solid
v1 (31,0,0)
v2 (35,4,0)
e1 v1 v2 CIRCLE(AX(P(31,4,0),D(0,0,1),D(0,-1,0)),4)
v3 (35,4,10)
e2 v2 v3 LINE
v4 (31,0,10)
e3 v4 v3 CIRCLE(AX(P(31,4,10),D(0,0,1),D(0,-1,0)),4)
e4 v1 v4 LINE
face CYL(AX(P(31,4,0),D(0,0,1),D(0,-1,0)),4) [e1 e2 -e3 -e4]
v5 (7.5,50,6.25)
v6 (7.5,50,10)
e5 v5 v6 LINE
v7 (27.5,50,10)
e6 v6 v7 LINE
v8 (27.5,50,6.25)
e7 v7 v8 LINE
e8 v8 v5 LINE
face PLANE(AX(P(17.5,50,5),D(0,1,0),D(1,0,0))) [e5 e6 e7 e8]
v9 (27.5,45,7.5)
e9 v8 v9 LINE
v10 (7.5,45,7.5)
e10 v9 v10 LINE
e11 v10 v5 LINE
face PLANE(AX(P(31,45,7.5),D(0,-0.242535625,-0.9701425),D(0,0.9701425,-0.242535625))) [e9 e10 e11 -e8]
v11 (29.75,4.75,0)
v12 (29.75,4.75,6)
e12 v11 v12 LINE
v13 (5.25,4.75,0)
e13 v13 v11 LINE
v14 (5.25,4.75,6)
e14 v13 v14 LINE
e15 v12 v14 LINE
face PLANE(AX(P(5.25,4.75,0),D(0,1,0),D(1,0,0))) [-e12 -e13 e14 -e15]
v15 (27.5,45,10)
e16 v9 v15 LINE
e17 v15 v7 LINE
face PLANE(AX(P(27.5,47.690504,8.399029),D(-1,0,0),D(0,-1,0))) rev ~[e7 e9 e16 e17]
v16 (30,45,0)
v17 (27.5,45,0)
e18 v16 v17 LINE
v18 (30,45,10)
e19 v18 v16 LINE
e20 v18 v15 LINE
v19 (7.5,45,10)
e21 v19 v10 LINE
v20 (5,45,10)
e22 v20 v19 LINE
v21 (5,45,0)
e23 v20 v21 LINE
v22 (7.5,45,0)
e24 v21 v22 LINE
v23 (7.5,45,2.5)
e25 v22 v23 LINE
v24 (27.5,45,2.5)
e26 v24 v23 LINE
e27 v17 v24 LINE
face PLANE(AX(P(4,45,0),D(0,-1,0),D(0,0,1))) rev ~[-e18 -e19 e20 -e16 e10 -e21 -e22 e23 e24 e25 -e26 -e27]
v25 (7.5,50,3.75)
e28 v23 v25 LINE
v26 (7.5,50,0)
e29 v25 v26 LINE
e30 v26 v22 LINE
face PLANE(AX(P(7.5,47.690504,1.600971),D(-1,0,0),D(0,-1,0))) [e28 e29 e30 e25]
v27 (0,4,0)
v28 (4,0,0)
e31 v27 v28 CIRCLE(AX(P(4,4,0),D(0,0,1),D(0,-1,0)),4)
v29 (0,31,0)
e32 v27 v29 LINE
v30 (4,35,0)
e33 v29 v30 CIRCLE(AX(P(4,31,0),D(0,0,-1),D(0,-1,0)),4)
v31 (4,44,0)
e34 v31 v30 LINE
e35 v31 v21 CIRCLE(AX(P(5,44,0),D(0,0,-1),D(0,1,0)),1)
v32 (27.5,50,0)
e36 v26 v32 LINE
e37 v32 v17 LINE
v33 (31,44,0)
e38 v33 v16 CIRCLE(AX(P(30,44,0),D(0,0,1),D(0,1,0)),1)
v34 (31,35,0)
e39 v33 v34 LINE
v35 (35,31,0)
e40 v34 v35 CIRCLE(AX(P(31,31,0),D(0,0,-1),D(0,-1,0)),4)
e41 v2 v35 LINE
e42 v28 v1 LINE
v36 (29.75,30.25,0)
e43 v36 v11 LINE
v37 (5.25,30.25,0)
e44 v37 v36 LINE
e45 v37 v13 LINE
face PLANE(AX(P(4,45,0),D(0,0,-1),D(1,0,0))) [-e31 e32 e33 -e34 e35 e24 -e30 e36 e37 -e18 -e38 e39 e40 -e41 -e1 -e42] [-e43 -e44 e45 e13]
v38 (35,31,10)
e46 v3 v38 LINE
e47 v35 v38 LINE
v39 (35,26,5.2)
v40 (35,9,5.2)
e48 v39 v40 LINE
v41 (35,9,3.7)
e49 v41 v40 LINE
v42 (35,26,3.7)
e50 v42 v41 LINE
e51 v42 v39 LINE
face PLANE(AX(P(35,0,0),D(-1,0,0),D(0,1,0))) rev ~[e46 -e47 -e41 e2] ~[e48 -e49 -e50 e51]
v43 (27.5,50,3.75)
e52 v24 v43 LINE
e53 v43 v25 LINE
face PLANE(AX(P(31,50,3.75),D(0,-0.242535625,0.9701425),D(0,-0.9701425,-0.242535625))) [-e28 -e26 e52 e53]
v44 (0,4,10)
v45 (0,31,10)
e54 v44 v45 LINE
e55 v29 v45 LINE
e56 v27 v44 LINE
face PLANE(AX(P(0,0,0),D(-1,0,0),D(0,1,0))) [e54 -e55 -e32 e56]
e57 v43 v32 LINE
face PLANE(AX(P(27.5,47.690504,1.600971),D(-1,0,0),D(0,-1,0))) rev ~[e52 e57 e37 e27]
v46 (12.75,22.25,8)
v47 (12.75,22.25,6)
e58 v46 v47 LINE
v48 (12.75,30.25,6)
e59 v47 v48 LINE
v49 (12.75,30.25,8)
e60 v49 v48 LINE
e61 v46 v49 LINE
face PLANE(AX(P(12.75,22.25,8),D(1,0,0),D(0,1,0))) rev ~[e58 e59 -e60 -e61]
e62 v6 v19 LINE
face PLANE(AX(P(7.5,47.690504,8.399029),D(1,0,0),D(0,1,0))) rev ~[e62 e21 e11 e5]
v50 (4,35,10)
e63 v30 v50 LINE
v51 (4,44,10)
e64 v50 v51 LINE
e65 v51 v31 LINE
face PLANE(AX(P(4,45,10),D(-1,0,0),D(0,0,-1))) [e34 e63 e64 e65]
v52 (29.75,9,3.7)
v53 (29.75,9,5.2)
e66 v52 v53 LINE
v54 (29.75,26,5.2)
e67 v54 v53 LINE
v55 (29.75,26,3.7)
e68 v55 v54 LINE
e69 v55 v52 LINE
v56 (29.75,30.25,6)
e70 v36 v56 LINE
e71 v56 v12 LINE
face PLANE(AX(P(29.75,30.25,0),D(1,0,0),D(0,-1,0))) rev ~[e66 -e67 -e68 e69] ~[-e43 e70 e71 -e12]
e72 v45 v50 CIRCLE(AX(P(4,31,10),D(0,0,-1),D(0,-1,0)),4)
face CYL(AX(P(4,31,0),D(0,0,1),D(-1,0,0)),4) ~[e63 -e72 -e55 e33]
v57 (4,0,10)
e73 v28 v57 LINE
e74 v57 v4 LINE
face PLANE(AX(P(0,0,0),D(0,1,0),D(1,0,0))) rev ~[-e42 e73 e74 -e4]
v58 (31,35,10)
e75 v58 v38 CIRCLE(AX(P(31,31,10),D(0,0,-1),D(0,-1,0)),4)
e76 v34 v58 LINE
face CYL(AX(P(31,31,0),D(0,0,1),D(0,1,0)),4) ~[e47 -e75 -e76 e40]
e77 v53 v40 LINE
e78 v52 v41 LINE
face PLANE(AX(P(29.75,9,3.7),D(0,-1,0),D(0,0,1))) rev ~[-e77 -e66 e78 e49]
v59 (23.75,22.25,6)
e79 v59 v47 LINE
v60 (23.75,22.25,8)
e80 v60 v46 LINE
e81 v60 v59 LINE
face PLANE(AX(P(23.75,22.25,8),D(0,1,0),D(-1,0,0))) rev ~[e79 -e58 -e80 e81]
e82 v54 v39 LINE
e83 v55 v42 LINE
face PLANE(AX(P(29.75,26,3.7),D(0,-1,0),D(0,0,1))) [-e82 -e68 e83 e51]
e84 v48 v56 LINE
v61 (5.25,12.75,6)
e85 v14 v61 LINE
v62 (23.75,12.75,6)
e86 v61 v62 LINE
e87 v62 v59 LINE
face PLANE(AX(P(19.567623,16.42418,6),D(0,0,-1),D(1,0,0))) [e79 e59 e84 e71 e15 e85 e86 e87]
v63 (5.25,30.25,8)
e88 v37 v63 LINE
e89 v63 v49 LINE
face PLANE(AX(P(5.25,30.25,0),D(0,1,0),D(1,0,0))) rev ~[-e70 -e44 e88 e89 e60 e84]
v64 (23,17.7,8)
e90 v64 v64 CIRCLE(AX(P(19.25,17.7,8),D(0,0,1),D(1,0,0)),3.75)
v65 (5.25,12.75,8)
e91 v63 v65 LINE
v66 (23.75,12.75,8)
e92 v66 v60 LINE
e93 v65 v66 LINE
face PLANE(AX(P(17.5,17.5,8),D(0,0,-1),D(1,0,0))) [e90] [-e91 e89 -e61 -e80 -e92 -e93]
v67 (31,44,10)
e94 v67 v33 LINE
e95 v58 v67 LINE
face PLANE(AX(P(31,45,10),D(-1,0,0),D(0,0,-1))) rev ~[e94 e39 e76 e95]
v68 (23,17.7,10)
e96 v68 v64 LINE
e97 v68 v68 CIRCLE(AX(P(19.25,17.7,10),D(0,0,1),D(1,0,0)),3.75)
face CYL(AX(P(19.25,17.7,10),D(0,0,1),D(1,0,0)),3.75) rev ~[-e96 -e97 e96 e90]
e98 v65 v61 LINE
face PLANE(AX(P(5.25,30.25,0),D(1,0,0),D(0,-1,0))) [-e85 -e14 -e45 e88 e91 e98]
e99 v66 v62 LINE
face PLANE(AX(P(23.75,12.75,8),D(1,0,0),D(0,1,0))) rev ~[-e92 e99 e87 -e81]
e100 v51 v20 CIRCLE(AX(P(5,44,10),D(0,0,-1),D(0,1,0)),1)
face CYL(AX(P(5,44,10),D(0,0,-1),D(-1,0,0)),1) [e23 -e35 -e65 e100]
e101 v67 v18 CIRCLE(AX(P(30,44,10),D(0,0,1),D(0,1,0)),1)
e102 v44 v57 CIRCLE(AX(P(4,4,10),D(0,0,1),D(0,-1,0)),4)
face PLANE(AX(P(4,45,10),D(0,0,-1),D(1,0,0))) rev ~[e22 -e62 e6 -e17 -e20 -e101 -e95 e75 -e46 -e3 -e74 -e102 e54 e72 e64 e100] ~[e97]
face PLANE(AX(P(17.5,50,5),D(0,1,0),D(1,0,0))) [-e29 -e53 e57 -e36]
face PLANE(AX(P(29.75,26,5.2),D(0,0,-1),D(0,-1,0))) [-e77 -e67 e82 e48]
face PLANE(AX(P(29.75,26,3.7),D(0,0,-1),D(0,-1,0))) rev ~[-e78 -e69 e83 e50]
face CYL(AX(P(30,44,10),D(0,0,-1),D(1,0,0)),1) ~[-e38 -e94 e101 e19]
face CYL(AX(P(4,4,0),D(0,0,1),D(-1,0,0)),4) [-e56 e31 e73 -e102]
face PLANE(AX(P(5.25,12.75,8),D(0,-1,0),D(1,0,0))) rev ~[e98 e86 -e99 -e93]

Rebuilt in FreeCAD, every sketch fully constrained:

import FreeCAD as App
import Part
import Sketcher
Q = App.Units.Quantity


def edges_at(feature, points):
    """Names of the edges that pass closest to the given points."""
    edges = feature.Shape.Edges
    near = lambda p: min(range(len(edges)), key=lambda i: edges[i].distToShape(Part.Vertex(*p))[0])
    return sorted({f"Edge{near(p) + 1}" for p in points})


def add_polygon(sketch, points):
    """Adds a closed chain of lines whose ends are joined by coincident constraints."""
    first, n = sketch.GeometryCount, len(points)
    for a, b in zip(points, points[1:] + points[:1]):
        sketch.addGeometry(Part.LineSegment(App.Vector(*a, 0), App.Vector(*b, 0)), False)
    for i in range(n):
        sketch.addConstraint(Sketcher.Constraint("Coincident", first + i, 2, first + (i + 1) % n, 1))

doc = App.newDocument("Part")
params = doc.addObject("Spreadsheet::Sheet", "Params")
for row, (alias, value) in enumerate([
    ("sketch1_width", "35 mm"),
    ("pad1_length", "10 mm"),
    ("sketch2_width", "24.5 mm"),
    ("sketch2_height", "25.5 mm"),
    ("pocket1_length", "8 mm"),
    ("sketch3_diameter", "7.5 mm"),
    ("pocket2_length", "2 mm"),
    ("sketch4_width", "17 mm"),
    ("sketch4_width2", "11 mm"),
    ("sketch4_height", "8 mm"),
    ("sketch4_width3", "24.5 mm"),
    ("sketch4_height2", "25.5 mm"),
    ("pad2_length", "2 mm"),
    ("sketch5_width", "17 mm"),
    ("sketch5_height", "1.5 mm"),
    ("fillet_radius", "4 mm"),
    ("sketch6_width", "27 mm"),
    ("sketch6_height", "10 mm"),
    ("pad3_length", "10 mm"),
    ("sketch7_width", "27 mm"),
    ("sketch7_height", "10 mm"),
    ("pad4_length", "5 mm"),
    ("sketch8_height", "5 mm"),
    ("sketch8_height2", "2.5 mm"),
    ("sketch9_width", "5 mm"),
    ("sketch9_height", "2.5 mm"),
    ("sketch9_height2", "3.75 mm"),
    ("pocket5_length", "3.5 mm"),
    ("sketch10_width", "5 mm"),
    ("sketch10_height", "2.5 mm"),
    ("sketch10_height2", "3.75 mm"),
    ("pocket6_length", "3.5 mm"),
    ("fillet2_radius", "1 mm"),
], start=1):
    params.set(f"A{row}", alias)
    params.set(f"B{row}", "=" + value)
    params.setAlias(f"B{row}", alias)

body = doc.addObject("PartDesign::Body", "Body")

sketch1 = body.newObject("Sketcher::SketchObject", "Sketch")
sketch1.AttachmentSupport = (doc.getObject("XY_Plane"), [""])
sketch1.MapMode = "FlatFace"
add_polygon(sketch1, [(0, 35), (0, 0), (35, 0), (35, 35)])
sketch1.addConstraint([
    Sketcher.Constraint("Vertical", 0),
    Sketcher.Constraint("Horizontal", 1),
    Sketcher.Constraint("Vertical", 2),
    Sketcher.Constraint("Horizontal", 3),
    Sketcher.Constraint("Coincident", 0, 2, -1, 1),
    Sketcher.Constraint("Equal", 3, 0),
    Sketcher.Constraint("DistanceX", 1, 1, 1, 2, Q("35 mm")),
])
sketch1.setExpression("Constraints[10]", "Params.sketch1_width")
pad1 = body.newObject("PartDesign::Pad", "Pad")
pad1.Profile = sketch1
pad1.setExpression("Length", "Params.pad1_length")

sketch2 = body.newObject("Sketcher::SketchObject", "Sketch001")
sketch2.AttachmentSupport = (doc.getObject("XY_Plane"), [""])
sketch2.MapMode = "FlatFace"
add_polygon(sketch2, [(5, 5), (5, 30), (30, 30), (30, 5)])
sketch2.addConstraint([
    Sketcher.Constraint("Vertical", 0),
    Sketcher.Constraint("Horizontal", 1),
    Sketcher.Constraint("Vertical", 2),
    Sketcher.Constraint("Horizontal", 3),
    Sketcher.Constraint("DistanceX", 1, 1, 1, 2, Q("24.5 mm")),
    Sketcher.Constraint("DistanceY", 0, 1, 0, 2, Q("25.5 mm")),
    Sketcher.Constraint("DistanceX", -1, 1, 0, 2, Q("5.25 mm")),
    Sketcher.Constraint("DistanceY", -1, 1, 0, 2, Q("30.25 mm")),
])
sketch2.setExpression("Constraints[8]", "Params.sketch2_width")
sketch2.setExpression("Constraints[9]", "Params.sketch2_height")
pocket1 = body.newObject("PartDesign::Pocket", "Pocket")
pocket1.Profile = sketch2
pocket1.setExpression("Length", "Params.pocket1_length")
pocket1.Reversed = True

sketch3 = body.newObject("Sketcher::SketchObject", "Sketch002")
sketch3.AttachmentSupport = (doc.getObject("XY_Plane"), [""])
sketch3.MapMode = "FlatFace"
sketch3.AttachmentOffset = App.Placement(App.Vector(0, 0, 10), App.Rotation())
sketch3.addGeometry(Part.Circle(App.Vector(19.2, 17.7, 0), App.Vector(0, 0, 1), 3.8), False)
sketch3.addConstraint([
    Sketcher.Constraint("Diameter", 0, Q("7.5 mm")),
    Sketcher.Constraint("DistanceY", -1, 1, 0, 3, Q("17.7 mm")),
    Sketcher.Constraint("DistanceX", -1, 1, 0, 3, Q("19.25 mm")),
])
sketch3.setExpression("Constraints[0]", "Params.sketch3_diameter")
pocket2 = body.newObject("PartDesign::Pocket", "Pocket001")
pocket2.Profile = sketch3
pocket2.setExpression("Length", "Params.pocket2_length")

sketch4 = body.newObject("Sketcher::SketchObject", "Sketch003")
sketch4.AttachmentSupport = (doc.getObject("XY_Plane"), [""])
sketch4.MapMode = "FlatFace"
sketch4.AttachmentOffset = App.Placement(App.Vector(0, 0, 8), App.Rotation())
add_polygon(sketch4, [(13, 30), (30, 30), (30, 5), (5, 5), (5, 13), (24, 13), (24, 22), (13, 22)])
sketch4.addConstraint([
    Sketcher.Constraint("Horizontal", 0),
    Sketcher.Constraint("Vertical", 1),
    Sketcher.Constraint("Horizontal", 2),
    Sketcher.Constraint("Vertical", 3),
    Sketcher.Constraint("Horizontal", 4),
    Sketcher.Constraint("Vertical", 5),
    Sketcher.Constraint("Horizontal", 6),
    Sketcher.Constraint("Vertical", 7),
    Sketcher.Constraint("Equal", 3, 7),
    Sketcher.Constraint("DistanceX", 0, 1, 0, 2, Q("17 mm")),
    Sketcher.Constraint("DistanceX", 6, 2, 6, 1, Q("11 mm")),
    Sketcher.Constraint("DistanceY", 3, 1, 3, 2, Q("8 mm")),
    Sketcher.Constraint("DistanceX", 2, 2, 2, 1, Q("24.5 mm")),
    Sketcher.Constraint("DistanceY", 1, 2, 1, 1, Q("25.5 mm")),
    Sketcher.Constraint("DistanceX", -1, 1, 0, 2, Q("29.75 mm")),
    Sketcher.Constraint("DistanceY", -1, 1, 0, 2, Q("30.25 mm")),
])
sketch4.setExpression("Constraints[17]", "Params.sketch4_width")
sketch4.setExpression("Constraints[18]", "Params.sketch4_width2")
sketch4.setExpression("Constraints[19]", "Params.sketch4_height")
sketch4.setExpression("Constraints[20]", "Params.sketch4_width3")
sketch4.setExpression("Constraints[21]", "Params.sketch4_height2")
pad2 = body.newObject("PartDesign::Pad", "Pad001")
pad2.Profile = sketch4
pad2.setExpression("Length", "Params.pad2_length")
pad2.Reversed = True

sketch5 = body.newObject("Sketcher::SketchObject", "Sketch004")
sketch5.AttachmentSupport = (doc.getObject("YZ_Plane"), [""])
sketch5.MapMode = "FlatFace"
sketch5.AttachmentOffset = App.Placement(App.Vector(0, 0, 29.75), App.Rotation())
add_polygon(sketch5, [(26, 5.2), (26, 3.7), (9, 3.7), (9, 5.2)])
sketch5.addConstraint([
    Sketcher.Constraint("Vertical", 0),
    Sketcher.Constraint("Horizontal", 1),
    Sketcher.Constraint("Vertical", 2),
    Sketcher.Constraint("Horizontal", 3),
    Sketcher.Constraint("DistanceX", 1, 2, 1, 1, Q("17 mm")),
    Sketcher.Constraint("DistanceY", 0, 2, 0, 1, Q("1.5 mm")),
    Sketcher.Constraint("DistanceX", -1, 1, 0, 2, Q("26 mm")),
    Sketcher.Constraint("DistanceY", -1, 1, 0, 2, Q("3.7 mm")),
])
sketch5.setExpression("Constraints[8]", "Params.sketch5_width")
sketch5.setExpression("Constraints[9]", "Params.sketch5_height")
pocket3 = body.newObject("PartDesign::Pocket", "Pocket002")
pocket3.Profile = sketch5
pocket3.Type = "ThroughAll"
pocket3.Reversed = True
doc.recompute()

fillet = body.newObject("PartDesign::Fillet", "Fillet")
fillet.Base = (pocket3, edges_at(pocket3, [
    (0, 0, 5),
    (35, 0, 5),
    (0, 35, 5),
    (35, 35, 5),
]))
fillet.setExpression("Radius", "Params.fillet_radius")

sketch6 = body.newObject("Sketcher::SketchObject", "Sketch005")
sketch6.AttachmentSupport = (doc.getObject("XZ_Plane"), [""])
sketch6.MapMode = "FlatFace"
sketch6.AttachmentOffset = App.Placement(App.Vector(0, 0, -35), App.Rotation())
add_polygon(sketch6, [(4, 0), (4, 10), (31, 10), (31, 0)])
sketch6.addConstraint([
    Sketcher.Constraint("Vertical", 0),
    Sketcher.Constraint("Horizontal", 1),
    Sketcher.Constraint("Vertical", 2),
    Sketcher.Constraint("Horizontal", 3),
    Sketcher.Constraint("PointOnObject", 2, 2, -1),
    Sketcher.Constraint("DistanceX", 1, 1, 1, 2, Q("27 mm")),
    Sketcher.Constraint("DistanceY", 0, 1, 0, 2, Q("10 mm")),
    Sketcher.Constraint("DistanceX", -1, 1, 0, 2, Q("4 mm")),
])
sketch6.setExpression("Constraints[9]", "Params.sketch6_width")
sketch6.setExpression("Constraints[10]", "Params.sketch6_height")
pad3 = body.newObject("PartDesign::Pad", "Pad002")
pad3.Profile = sketch6
pad3.setExpression("Length", "Params.pad3_length")
pad3.Reversed = True

sketch7 = body.newObject("Sketcher::SketchObject", "Sketch006")
sketch7.AttachmentSupport = (doc.getObject("XZ_Plane"), [""])
sketch7.MapMode = "FlatFace"
sketch7.AttachmentOffset = App.Placement(App.Vector(0, 0, -45), App.Rotation())
add_polygon(sketch7, [(4, 0), (4, 10), (31, 10), (31, 0)])
sketch7.addConstraint([
    Sketcher.Constraint("Vertical", 0),
    Sketcher.Constraint("Horizontal", 1),
    Sketcher.Constraint("Vertical", 2),
    Sketcher.Constraint("Horizontal", 3),
    Sketcher.Constraint("PointOnObject", 2, 2, -1),
    Sketcher.Constraint("DistanceX", 1, 1, 1, 2, Q("27 mm")),
    Sketcher.Constraint("DistanceY", 0, 1, 0, 2, Q("10 mm")),
    Sketcher.Constraint("DistanceX", -1, 1, 0, 2, Q("4 mm")),
])
sketch7.setExpression("Constraints[9]", "Params.sketch7_width")
sketch7.setExpression("Constraints[10]", "Params.sketch7_height")
pad4 = body.newObject("PartDesign::Pad", "Pad003")
pad4.Profile = sketch7
pad4.setExpression("Length", "Params.pad4_length")
pad4.Reversed = True

sketch8 = body.newObject("Sketcher::SketchObject", "Sketch007")
sketch8.AttachmentSupport = (doc.getObject("YZ_Plane"), [""])
sketch8.MapMode = "FlatFace"
sketch8.AttachmentOffset = App.Placement(App.Vector(0, 0, 31), App.Rotation())
add_polygon(sketch8, [(45, 7.5), (45, 2.5), (50, 3.8), (50, 6.2)])
sketch8.addConstraint([
    Sketcher.Constraint("Vertical", 0),
    Sketcher.Constraint("Vertical", 2),
    Sketcher.Constraint("Equal", 1, 3),
    Sketcher.Constraint("DistanceY", 0, 2, 0, 1, Q("5 mm")),
    Sketcher.Constraint("DistanceY", 2, 1, 2, 2, Q("2.5 mm")),
    Sketcher.Constraint("DistanceX", -1, 1, 0, 2, Q("45 mm")),
    Sketcher.Constraint("DistanceX", -1, 1, 1, 2, Q("50 mm")),
    Sketcher.Constraint("DistanceY", -1, 1, 0, 2, Q("2.5 mm")),
])
sketch8.setExpression("Constraints[7]", "Params.sketch8_height")
sketch8.setExpression("Constraints[8]", "Params.sketch8_height2")
pocket4 = body.newObject("PartDesign::Pocket", "Pocket003")
pocket4.Profile = sketch8
pocket4.Type = "ThroughAll"

sketch9 = body.newObject("Sketcher::SketchObject", "Sketch008")
sketch9.AttachmentSupport = (doc.getObject("YZ_Plane"), [""])
sketch9.MapMode = "FlatFace"
sketch9.AttachmentOffset = App.Placement(App.Vector(0, 0, 31), App.Rotation())
add_polygon(sketch9, [(45, 2.5), (45, 0), (50, 0), (50, 3.8)])
add_polygon(sketch9, [(45, 10), (45, 7.5), (50, 6.2), (50, 10)])
sketch9.addConstraint([
    Sketcher.Constraint("Vertical", 0),
    Sketcher.Constraint("Horizontal", 1),
    Sketcher.Constraint("Vertical", 2),
    Sketcher.Constraint("Vertical", 4),
    Sketcher.Constraint("Vertical", 6),
    Sketcher.Constraint("Horizontal", 7),
    Sketcher.Constraint("PointOnObject", 0, 2, -1),
    Sketcher.Constraint("Vertical", 3, 2, 4, 2),
    Sketcher.Constraint("Vertical", 2, 2, 5, 2),
    Sketcher.Constraint("Equal", 0, 4),
    Sketcher.Constraint("Equal", 2, 6),
    Sketcher.Constraint("DistanceX", 1, 1, 1, 2, Q("5 mm")),
    Sketcher.Constraint("DistanceY", 0, 2, 0, 1, Q("2.5 mm")),
    Sketcher.Constraint("DistanceX", -1, 1, 0, 2, Q("45 mm")),
    Sketcher.Constraint("DistanceY", -1, 1, 6, 2, Q("10 mm")),
    Sketcher.Constraint("DistanceY", 2, 1, 2, 2, Q("3.75 mm")),
])
sketch9.setExpression("Constraints[19]", "Params.sketch9_width")
sketch9.setExpression("Constraints[20]", "Params.sketch9_height")
sketch9.setExpression("Constraints[23]", "Params.sketch9_height2")
pocket5 = body.newObject("PartDesign::Pocket", "Pocket004")
pocket5.Profile = sketch9
pocket5.setExpression("Length", "Params.pocket5_length")

sketch10 = body.newObject("Sketcher::SketchObject", "Sketch009")
sketch10.AttachmentSupport = (doc.getObject("YZ_Plane"), [""])
sketch10.MapMode = "FlatFace"
sketch10.AttachmentOffset = App.Placement(App.Vector(0, 0, 4), App.Rotation())
add_polygon(sketch10, [(45, 7.5), (45, 10), (50, 10), (50, 6.2)])
add_polygon(sketch10, [(50, 3.8), (50, 0), (45, 0), (45, 2.5)])
sketch10.addConstraint([
    Sketcher.Constraint("Vertical", 0),
    Sketcher.Constraint("Horizontal", 1),
    Sketcher.Constraint("Vertical", 2),
    Sketcher.Constraint("Vertical", 4),
    Sketcher.Constraint("Horizontal", 5),
    Sketcher.Constraint("Vertical", 6),
    Sketcher.Constraint("PointOnObject", 4, 2, -1),
    Sketcher.Constraint("Vertical", 2, 2, 4, 2),
    Sketcher.Constraint("Vertical", 3, 2, 5, 2),
    Sketcher.Constraint("Equal", 2, 4),
    Sketcher.Constraint("Equal", 0, 6),
    Sketcher.Constraint("DistanceX", 1, 1, 1, 2, Q("5 mm")),
    Sketcher.Constraint("DistanceY", 0, 1, 0, 2, Q("2.5 mm")),
    Sketcher.Constraint("DistanceX", -1, 1, 0, 2, Q("45 mm")),
    Sketcher.Constraint("DistanceY", -1, 1, 0, 2, Q("10 mm")),
    Sketcher.Constraint("DistanceY", 2, 2, 2, 1, Q("3.75 mm")),
])
sketch10.setExpression("Constraints[19]", "Params.sketch10_width")
sketch10.setExpression("Constraints[20]", "Params.sketch10_height")
sketch10.setExpression("Constraints[23]", "Params.sketch10_height2")
pocket6 = body.newObject("PartDesign::Pocket", "Pocket005")
pocket6.Profile = sketch10
pocket6.setExpression("Length", "Params.pocket6_length")
pocket6.Reversed = True
doc.recompute()

fillet2 = body.newObject("PartDesign::Fillet", "Fillet001")
fillet2.Base = (pocket6, edges_at(pocket6, [
    (4, 45, 5),
    (4, 45, 5),
    (4, 45, 5),
    (31, 45, 5),
    (31, 45, 5),
    (31, 45, 5),
]))
fillet2.setExpression("Radius", "Params.fillet2_radius")

doc.recompute()
